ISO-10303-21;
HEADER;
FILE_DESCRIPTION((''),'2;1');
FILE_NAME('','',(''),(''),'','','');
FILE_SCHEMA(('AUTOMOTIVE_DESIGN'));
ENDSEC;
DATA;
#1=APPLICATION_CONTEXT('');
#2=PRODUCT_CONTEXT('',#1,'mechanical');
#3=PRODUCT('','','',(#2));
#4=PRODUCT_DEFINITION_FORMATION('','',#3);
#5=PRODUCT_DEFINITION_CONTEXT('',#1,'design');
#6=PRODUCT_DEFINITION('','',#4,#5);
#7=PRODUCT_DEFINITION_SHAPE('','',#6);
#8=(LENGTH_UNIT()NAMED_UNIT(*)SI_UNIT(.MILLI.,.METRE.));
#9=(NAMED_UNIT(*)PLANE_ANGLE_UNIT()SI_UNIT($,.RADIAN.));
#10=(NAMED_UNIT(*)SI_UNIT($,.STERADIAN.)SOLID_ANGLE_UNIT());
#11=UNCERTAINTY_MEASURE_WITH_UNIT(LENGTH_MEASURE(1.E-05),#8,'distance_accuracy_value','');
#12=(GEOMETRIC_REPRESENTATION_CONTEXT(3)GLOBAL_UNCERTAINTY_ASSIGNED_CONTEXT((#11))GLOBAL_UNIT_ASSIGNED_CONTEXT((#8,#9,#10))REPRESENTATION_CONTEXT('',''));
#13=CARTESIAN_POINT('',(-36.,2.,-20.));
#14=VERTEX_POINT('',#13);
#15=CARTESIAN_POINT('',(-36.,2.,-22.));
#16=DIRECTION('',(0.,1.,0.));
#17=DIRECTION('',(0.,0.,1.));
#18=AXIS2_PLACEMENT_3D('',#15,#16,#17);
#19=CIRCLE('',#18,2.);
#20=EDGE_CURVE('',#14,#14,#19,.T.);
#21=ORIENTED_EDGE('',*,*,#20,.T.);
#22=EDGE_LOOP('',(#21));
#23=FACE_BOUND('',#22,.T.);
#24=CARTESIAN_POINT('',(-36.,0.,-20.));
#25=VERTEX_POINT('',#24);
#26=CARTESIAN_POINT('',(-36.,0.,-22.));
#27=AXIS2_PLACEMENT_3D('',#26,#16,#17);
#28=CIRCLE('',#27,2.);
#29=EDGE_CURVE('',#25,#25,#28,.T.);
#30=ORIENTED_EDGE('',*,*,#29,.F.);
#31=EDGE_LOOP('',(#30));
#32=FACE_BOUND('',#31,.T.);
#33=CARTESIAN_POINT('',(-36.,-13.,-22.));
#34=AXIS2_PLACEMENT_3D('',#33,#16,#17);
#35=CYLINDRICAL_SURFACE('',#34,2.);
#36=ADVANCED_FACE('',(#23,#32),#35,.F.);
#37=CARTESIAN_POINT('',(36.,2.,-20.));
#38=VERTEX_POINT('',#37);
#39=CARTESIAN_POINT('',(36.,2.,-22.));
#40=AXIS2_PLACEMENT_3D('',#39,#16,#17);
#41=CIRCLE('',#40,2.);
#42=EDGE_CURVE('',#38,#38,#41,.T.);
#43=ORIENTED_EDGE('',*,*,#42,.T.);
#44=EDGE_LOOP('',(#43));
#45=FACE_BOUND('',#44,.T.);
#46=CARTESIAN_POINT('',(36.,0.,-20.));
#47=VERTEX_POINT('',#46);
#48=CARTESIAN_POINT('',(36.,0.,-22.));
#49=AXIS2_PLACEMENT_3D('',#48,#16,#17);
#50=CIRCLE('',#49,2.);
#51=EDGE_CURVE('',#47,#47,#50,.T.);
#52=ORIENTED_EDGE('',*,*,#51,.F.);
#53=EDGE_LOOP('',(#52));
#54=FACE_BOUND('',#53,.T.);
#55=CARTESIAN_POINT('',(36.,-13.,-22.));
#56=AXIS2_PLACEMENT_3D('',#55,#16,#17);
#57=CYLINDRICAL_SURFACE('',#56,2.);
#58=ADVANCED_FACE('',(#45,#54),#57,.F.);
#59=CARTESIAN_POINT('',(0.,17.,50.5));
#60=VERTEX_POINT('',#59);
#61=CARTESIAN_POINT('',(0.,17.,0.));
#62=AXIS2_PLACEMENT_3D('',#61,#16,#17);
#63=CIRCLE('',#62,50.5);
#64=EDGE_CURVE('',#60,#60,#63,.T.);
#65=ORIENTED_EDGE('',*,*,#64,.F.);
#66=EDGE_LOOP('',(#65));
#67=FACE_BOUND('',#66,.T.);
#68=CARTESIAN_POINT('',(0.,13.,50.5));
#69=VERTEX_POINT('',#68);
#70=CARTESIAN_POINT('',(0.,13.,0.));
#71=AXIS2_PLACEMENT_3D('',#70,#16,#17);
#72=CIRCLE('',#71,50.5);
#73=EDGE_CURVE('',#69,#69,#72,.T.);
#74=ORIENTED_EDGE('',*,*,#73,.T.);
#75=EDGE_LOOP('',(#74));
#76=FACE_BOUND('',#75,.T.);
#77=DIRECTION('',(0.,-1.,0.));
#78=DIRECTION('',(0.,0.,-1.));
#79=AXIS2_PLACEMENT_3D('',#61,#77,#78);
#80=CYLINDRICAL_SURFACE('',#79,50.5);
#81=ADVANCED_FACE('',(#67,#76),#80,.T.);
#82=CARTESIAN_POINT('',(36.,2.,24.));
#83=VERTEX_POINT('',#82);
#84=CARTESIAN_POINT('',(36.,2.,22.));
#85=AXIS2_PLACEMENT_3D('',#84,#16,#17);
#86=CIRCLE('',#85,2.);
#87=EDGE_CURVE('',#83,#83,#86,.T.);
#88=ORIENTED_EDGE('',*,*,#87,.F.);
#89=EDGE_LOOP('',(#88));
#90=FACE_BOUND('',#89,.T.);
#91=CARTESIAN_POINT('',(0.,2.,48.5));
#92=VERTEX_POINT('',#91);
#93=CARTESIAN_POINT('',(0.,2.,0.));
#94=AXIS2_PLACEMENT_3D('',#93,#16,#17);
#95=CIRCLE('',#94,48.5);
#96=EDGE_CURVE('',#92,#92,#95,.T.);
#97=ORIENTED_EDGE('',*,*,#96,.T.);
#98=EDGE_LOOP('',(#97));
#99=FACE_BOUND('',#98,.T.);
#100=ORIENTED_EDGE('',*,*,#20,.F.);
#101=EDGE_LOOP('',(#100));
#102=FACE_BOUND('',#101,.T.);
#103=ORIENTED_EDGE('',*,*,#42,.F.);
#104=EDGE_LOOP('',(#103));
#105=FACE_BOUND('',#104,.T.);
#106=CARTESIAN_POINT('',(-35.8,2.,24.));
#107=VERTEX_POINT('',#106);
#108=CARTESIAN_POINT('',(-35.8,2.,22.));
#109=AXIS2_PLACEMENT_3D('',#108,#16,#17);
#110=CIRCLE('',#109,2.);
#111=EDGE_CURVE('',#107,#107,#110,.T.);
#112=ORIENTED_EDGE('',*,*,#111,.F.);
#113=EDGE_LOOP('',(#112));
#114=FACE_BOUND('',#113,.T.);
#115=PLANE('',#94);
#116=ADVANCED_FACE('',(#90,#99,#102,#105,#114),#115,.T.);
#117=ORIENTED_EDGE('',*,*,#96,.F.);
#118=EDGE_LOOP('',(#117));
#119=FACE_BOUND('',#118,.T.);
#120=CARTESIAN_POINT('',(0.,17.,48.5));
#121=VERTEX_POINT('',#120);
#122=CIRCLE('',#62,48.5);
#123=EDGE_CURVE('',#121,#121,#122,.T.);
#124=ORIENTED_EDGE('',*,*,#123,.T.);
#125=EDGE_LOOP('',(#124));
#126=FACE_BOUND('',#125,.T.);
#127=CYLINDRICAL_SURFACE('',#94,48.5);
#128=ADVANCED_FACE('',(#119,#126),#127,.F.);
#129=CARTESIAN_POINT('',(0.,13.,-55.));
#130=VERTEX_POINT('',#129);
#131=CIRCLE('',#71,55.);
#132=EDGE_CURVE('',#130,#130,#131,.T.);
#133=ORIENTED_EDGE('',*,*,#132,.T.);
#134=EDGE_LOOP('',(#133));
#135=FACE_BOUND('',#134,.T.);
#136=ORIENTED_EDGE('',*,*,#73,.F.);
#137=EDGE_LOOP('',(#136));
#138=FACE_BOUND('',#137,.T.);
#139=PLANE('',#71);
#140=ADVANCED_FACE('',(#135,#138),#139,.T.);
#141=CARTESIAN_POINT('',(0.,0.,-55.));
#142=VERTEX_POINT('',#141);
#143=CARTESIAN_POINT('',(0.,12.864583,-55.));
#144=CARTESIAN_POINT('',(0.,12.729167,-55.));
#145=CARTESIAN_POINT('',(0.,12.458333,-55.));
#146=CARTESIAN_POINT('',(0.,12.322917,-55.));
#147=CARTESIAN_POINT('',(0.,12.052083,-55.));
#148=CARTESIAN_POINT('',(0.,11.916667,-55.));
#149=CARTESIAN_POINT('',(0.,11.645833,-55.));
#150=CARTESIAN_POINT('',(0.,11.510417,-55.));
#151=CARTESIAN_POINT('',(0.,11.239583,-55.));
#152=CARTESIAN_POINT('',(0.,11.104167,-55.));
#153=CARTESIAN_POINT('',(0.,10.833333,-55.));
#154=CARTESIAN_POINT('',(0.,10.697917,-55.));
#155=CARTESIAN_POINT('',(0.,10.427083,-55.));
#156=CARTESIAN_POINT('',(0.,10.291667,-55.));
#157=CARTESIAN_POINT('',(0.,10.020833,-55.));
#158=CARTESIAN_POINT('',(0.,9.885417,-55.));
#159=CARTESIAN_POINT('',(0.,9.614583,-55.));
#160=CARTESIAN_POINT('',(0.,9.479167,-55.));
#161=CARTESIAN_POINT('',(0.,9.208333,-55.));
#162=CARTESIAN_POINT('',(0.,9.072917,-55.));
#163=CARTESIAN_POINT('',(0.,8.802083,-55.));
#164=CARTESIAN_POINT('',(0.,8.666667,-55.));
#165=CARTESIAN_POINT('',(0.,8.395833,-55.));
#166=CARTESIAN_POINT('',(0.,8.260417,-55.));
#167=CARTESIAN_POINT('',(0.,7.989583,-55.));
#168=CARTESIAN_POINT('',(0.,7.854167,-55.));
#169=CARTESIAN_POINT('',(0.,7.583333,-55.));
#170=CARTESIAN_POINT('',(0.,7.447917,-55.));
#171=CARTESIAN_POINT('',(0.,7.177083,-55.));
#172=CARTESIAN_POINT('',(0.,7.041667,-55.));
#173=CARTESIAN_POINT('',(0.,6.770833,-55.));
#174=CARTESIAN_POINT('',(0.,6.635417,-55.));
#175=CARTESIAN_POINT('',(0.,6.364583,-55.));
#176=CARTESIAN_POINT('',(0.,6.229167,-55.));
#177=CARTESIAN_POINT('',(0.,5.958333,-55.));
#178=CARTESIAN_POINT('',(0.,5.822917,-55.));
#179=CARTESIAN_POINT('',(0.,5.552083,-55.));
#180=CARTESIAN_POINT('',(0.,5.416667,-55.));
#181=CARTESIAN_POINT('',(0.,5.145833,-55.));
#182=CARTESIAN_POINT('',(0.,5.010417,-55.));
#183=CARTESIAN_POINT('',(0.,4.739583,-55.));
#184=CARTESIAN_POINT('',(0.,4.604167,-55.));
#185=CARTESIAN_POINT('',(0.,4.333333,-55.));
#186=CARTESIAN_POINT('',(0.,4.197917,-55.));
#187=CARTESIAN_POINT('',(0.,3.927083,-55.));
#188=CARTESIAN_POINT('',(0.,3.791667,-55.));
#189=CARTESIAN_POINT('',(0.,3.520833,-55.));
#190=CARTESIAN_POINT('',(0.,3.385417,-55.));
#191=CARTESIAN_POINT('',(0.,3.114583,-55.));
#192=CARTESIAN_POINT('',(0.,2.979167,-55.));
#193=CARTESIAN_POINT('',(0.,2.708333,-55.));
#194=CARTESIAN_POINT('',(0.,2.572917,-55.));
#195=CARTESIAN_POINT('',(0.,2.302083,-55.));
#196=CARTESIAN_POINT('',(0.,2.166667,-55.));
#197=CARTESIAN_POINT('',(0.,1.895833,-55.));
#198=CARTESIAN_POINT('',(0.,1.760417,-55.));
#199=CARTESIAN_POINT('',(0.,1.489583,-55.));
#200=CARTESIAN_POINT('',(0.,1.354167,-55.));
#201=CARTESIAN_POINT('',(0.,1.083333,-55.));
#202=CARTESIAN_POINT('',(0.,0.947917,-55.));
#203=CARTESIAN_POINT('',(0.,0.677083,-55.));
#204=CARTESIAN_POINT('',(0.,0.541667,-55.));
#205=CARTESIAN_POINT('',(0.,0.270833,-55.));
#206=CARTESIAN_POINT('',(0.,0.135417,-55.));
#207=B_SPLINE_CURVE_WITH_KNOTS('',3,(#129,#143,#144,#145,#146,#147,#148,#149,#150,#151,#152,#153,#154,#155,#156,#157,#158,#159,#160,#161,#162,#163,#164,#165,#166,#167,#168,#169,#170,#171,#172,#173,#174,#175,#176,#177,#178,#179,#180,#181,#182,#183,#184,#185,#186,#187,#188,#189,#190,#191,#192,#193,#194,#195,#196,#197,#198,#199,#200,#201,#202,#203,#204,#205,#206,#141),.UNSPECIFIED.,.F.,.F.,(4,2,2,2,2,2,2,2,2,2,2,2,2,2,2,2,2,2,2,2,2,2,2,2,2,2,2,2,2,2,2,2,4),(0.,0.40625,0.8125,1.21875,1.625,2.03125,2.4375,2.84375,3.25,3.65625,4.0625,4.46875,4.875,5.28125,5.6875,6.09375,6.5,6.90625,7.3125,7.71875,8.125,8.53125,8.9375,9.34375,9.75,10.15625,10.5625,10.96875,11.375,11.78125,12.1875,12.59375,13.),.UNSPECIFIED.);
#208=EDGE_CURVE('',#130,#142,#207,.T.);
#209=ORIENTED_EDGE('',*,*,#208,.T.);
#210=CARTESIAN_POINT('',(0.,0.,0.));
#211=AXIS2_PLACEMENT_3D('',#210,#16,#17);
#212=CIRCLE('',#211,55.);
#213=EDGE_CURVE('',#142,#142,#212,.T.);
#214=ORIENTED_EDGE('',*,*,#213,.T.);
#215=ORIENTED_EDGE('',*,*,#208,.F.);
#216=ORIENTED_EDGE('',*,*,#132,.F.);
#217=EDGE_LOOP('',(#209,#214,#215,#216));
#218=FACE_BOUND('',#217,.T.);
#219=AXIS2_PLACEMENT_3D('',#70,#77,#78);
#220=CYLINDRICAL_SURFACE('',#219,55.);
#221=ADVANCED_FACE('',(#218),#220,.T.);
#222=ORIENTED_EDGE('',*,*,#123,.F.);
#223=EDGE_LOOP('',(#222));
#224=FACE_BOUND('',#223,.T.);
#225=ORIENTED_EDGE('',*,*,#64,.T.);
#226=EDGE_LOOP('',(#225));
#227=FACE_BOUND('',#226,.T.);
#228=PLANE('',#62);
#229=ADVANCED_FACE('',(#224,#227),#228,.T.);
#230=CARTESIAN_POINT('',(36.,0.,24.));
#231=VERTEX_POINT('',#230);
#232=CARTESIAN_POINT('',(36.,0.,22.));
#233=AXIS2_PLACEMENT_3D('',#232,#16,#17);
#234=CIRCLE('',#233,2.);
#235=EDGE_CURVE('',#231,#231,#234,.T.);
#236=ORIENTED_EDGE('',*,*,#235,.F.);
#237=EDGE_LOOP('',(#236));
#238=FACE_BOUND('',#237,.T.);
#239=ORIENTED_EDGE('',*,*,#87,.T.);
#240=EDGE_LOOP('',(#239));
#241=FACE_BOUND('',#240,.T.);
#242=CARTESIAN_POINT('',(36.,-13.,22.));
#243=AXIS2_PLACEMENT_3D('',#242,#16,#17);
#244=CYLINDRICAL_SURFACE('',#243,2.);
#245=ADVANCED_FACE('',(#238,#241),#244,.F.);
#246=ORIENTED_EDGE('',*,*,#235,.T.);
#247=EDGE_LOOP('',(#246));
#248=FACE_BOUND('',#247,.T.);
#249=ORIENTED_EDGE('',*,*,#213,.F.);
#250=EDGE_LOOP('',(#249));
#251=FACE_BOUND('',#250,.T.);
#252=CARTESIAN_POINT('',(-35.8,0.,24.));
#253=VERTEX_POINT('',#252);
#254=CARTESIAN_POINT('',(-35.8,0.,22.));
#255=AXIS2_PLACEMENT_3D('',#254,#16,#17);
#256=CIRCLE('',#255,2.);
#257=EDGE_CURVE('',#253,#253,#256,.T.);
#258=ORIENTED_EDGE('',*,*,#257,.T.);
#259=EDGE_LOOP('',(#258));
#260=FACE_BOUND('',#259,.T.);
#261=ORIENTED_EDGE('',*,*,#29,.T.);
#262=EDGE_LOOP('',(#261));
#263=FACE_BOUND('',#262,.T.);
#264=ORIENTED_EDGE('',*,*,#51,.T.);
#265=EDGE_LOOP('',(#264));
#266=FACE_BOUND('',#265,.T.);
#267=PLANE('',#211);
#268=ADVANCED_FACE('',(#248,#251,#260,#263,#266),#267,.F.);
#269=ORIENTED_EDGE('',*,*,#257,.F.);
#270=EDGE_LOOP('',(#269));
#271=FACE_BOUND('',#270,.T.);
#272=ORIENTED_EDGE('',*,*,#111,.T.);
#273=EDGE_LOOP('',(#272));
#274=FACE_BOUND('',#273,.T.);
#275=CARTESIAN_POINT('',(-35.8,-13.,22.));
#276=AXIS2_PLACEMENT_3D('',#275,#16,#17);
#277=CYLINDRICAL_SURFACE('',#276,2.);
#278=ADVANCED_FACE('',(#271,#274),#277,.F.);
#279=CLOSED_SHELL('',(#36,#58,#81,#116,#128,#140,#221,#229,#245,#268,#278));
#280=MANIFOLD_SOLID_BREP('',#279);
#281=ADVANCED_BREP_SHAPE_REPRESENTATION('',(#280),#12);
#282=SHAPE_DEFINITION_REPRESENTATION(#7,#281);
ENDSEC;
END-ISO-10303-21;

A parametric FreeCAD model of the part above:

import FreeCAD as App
import Part
import Sketcher
Q = App.Units.Quantity

doc = App.newDocument("Part")
body = doc.addObject("PartDesign::Body", "Body")

# Sketch on XZ plane
sketch1 = body.newObject("Sketcher::SketchObject", "Sketch")
sketch1.AttachmentSupport = (doc.getObject("XZ_Plane"), [""])
sketch1.MapMode = "FlatFace"
sketch1.addGeometry(Part.Circle(App.Vector(0, 0, 0), App.Vector(0, 0, 1), 55), False)
sketch1.addConstraint([
    Sketcher.Constraint("Coincident", 0, 3, -1, 1),
    Sketcher.Constraint("Diameter", 0, Q("110 mm")),
])
pad1 = body.newObject("PartDesign::Pad", "Pad")
pad1.Profile = sketch1
pad1.Length = 13
pad1.Reversed = True

# Sketch on XZ plane
sketch2 = body.newObject("Sketcher::SketchObject", "Sketch001")
sketch2.AttachmentSupport = (doc.getObject("XZ_Plane"), [""])
sketch2.MapMode = "FlatFace"
sketch2.AttachmentOffset = App.Placement(App.Vector(0, 0, -13), App.Rotation())
sketch2.addGeometry(Part.Circle(App.Vector(0, 0, 0), App.Vector(0, 0, 1), 50), False)
sketch2.addConstraint([
    Sketcher.Constraint("Coincident", 0, 3, -1, 1),
    Sketcher.Constraint("Diameter", 0, Q("101 mm")),
])
pad2 = body.newObject("PartDesign::Pad", "Pad001")
pad2.Profile = sketch2
pad2.Length = 4
pad2.Reversed = True

# Sketch on XZ plane
sketch3 = body.newObject("Sketcher::SketchObject", "Sketch002")
sketch3.AttachmentSupport = (doc.getObject("XZ_Plane"), [""])
sketch3.MapMode = "FlatFace"
sketch3.AttachmentOffset = App.Placement(App.Vector(0, 0, -17), App.Rotation())
sketch3.addGeometry(Part.Circle(App.Vector(0, 0, 0), App.Vector(0, 0, 1), 48), False)
sketch3.addConstraint([
    Sketcher.Constraint("Coincident", 0, 3, -1, 1),
    Sketcher.Constraint("Diameter", 0, Q("97 mm")),
])
pocket1 = body.newObject("PartDesign::Pocket", "Pocket")
pocket1.Profile = sketch3
pocket1.Length = 15
pocket1.Reversed = True

# Sketch on XZ plane
sketch4 = body.newObject("Sketcher::SketchObject", "Sketch003")
sketch4.AttachmentSupport = (doc.getObject("XZ_Plane"), [""])
sketch4.MapMode = "FlatFace"
sketch4.AttachmentOffset = App.Placement(App.Vector(0, 0, -2), App.Rotation())
sketch4.addGeometry([
    Part.Circle(App.Vector(36, 22, 0), App.Vector(0, 0, 1), 2),
    Part.Circle(App.Vector(-36, -22, 0), App.Vector(0, 0, 1), 2),
    Part.Circle(App.Vector(-35.8, 22, 0), App.Vector(0, 0, 1), 2),
    Part.Circle(App.Vector(36, -22, 0), App.Vector(0, 0, 1), 2),
], False)
sketch4.addConstraint([
    Sketcher.Constraint("Equal", 0, 1),
    Sketcher.Constraint("Equal", 1, 2),
    Sketcher.Constraint("Equal", 2, 3),
    Sketcher.Constraint("Symmetric", 0, 3, 1, 3, -1, 1),
    Sketcher.Constraint("Symmetric", 1, 3, 3, 3, -2),
    Sketcher.Constraint("Horizontal", 0, 3, 2, 3),
    Sketcher.Constraint("Diameter", 0, Q("4 mm")),
    Sketcher.Constraint("DistanceX", -1, 1, 0, 3, Q("36 mm")),
    Sketcher.Constraint("DistanceY", -1, 1, 0, 3, Q("22 mm")),
    Sketcher.Constraint("DistanceX", 2, 3, -1, 1, Q("35.8 mm")),
])
pocket2 = body.newObject("PartDesign::Pocket", "Pocket001")
pocket2.Profile = sketch4
pocket2.Length = 15
pocket2.Reversed = True

doc.recompute()
